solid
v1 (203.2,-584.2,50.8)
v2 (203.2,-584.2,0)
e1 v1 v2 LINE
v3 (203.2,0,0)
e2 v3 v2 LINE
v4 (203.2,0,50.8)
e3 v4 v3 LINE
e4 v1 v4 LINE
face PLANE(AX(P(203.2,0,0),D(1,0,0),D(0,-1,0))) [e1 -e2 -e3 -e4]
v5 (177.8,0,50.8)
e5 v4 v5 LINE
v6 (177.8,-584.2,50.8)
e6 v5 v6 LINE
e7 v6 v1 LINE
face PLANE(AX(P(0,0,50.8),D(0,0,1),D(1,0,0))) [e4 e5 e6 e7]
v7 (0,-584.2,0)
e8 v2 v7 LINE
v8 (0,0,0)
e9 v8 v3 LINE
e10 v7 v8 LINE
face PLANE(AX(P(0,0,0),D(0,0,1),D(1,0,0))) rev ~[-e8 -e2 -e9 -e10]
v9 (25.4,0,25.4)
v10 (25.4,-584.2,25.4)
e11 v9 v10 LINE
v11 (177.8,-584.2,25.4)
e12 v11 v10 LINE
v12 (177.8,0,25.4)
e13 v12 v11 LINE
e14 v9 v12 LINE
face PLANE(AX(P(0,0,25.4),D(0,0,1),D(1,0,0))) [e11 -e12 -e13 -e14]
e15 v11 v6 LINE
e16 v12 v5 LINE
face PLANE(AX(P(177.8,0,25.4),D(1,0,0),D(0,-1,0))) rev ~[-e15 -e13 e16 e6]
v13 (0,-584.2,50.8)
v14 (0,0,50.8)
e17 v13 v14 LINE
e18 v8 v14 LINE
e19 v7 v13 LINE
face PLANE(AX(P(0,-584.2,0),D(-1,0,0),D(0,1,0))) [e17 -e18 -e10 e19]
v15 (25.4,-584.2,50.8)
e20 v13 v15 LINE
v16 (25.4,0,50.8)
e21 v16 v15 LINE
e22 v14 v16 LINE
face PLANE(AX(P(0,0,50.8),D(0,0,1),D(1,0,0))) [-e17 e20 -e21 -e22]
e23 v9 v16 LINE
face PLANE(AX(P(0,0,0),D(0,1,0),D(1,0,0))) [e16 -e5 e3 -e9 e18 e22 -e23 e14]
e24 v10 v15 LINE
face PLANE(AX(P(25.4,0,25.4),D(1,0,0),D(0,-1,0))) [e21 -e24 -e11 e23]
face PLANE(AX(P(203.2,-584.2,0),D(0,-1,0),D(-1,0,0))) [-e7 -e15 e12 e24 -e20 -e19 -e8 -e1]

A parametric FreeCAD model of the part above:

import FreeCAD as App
import Part
import Sketcher
Q = App.Units.Quantity

doc = App.newDocument("Part")
body = doc.addObject("PartDesign::Body", "Body")

sketch1 = body.newObject("Sketcher::SketchObject", "Sketch")
sketch1.AttachmentSupport = (doc.getObject("XY_Plane"), [""])
sketch1.MapMode = "FlatFace"
sketch1.addGeometry(Part.LineSegment(App.Vector(203.2, 0, 0), App.Vector(0, 0, 0)), False)
sketch1.addGeometry(Part.LineSegment(App.Vector(0, 0, 0), App.Vector(0, -584.2, 0)), False)
sketch1.addGeometry(Part.LineSegment(App.Vector(0, -584.2, 0), App.Vector(203.2, -584.2, 0)), False)
sketch1.addGeometry(Part.LineSegment(App.Vector(203.2, -584.2, 0), App.Vector(203.2, 0, 0)), False)
sketch1.addConstraint(Sketcher.Constraint("Coincident", 0, 2, 1, 1))
sketch1.addConstraint(Sketcher.Constraint("Coincident", 1, 2, 2, 1))
sketch1.addConstraint(Sketcher.Constraint("Coincident", 2, 2, 3, 1))
sketch1.addConstraint(Sketcher.Constraint("Coincident", 3, 2, 0, 1))
sketch1.addConstraint(Sketcher.Constraint("Horizontal", 0))
sketch1.addConstraint(Sketcher.Constraint("Vertical", 1))
sketch1.addConstraint(Sketcher.Constraint("Horizontal", 2))
sketch1.addConstraint(Sketcher.Constraint("Vertical", 3))
sketch1.addConstraint(Sketcher.Constraint("Coincident", 0, 2, -1, 1))
sketch1.addConstraint(Sketcher.Constraint("DistanceX", 0, 2, 0, 1, Q("8 in")))
sketch1.addConstraint(Sketcher.Constraint("DistanceY", 1, 2, 1, 1, Q("23 in")))
pad1 = body.newObject("PartDesign::Pad", "Pad")
pad1.Profile = sketch1
pad1.Length = Q("1 in")

sketch2 = body.newObject("Sketcher::SketchObject", "Sketch001")
sketch2.AttachmentSupport = (doc.getObject("XY_Plane"), [""])
sketch2.MapMode = "FlatFace"
sketch2.AttachmentOffset = App.Placement(App.Vector(0, 0, 1 * 25.4), App.Rotation())
sketch2.addGeometry(Part.LineSegment(App.Vector(0, 0, 0), App.Vector(0, -584.2, 0)), False)
sketch2.addGeometry(Part.LineSegment(App.Vector(0, -584.2, 0), App.Vector(25.4, -584.2, 0)), False)
sketch2.addGeometry(Part.LineSegment(App.Vector(25.4, -584.2, 0), App.Vector(25.4, 0, 0)), False)
sketch2.addGeometry(Part.LineSegment(App.Vector(25.4, 0, 0), App.Vector(0, 0, 0)), False)
sketch2.addGeometry(Part.LineSegment(App.Vector(177.8, 0, 0), App.Vector(177.8, -584.2, 0)), False)
sketch2.addGeometry(Part.LineSegment(App.Vector(177.8, -584.2, 0), App.Vector(203.2, -584.2, 0)), False)
sketch2.addGeometry(Part.LineSegment(App.Vector(203.2, -584.2, 0), App.Vector(203.2, 0, 0)), False)
sketch2.addGeometry(Part.LineSegment(App.Vector(203.2, 0, 0), App.Vector(177.8, 0, 0)), False)
sketch2.addConstraint(Sketcher.Constraint("Coincident", 0, 2, 1, 1))
sketch2.addConstraint(Sketcher.Constraint("Coincident", 1, 2, 2, 1))
sketch2.addConstraint(Sketcher.Constraint("Coincident", 2, 2, 3, 1))
sketch2.addConstraint(Sketcher.Constraint("Coincident", 3, 2, 0, 1))
sketch2.addConstraint(Sketcher.Constraint("Coincident", 4, 2, 5, 1))
sketch2.addConstraint(Sketcher.Constraint("Coincident", 5, 2, 6, 1))
sketch2.addConstraint(Sketcher.Constraint("Coincident", 6, 2, 7, 1))
sketch2.addConstraint(Sketcher.Constraint("Coincident", 7, 2, 4, 1))
sketch2.addConstraint(Sketcher.Constraint("Vertical", 0))
sketch2.addConstraint(Sketcher.Constraint("Horizontal", 1))
sketch2.addConstraint(Sketcher.Constraint("Vertical", 2))
sketch2.addConstraint(Sketcher.Constraint("Horizontal", 3))
sketch2.addConstraint(Sketcher.Constraint("Vertical", 4))
sketch2.addConstraint(Sketcher.Constraint("Horizontal", 5))
sketch2.addConstraint(Sketcher.Constraint("Vertical", 6))
sketch2.addConstraint(Sketcher.Constraint("Horizontal", 7))
sketch2.addConstraint(Sketcher.Constraint("Coincident", 3, 2, -1, 1))
sketch2.addConstraint(Sketcher.Constraint("PointOnObject", 6, 2, -1))
sketch2.addConstraint(Sketcher.Constraint("Horizontal", 1, 2, 4, 2))
sketch2.addConstraint(Sketcher.Constraint("Equal", 3, 5))
sketch2.addConstraint(Sketcher.Constraint("DistanceX", 1, 1, 1, 2, Q("1 in")))
sketch2.addConstraint(Sketcher.Constraint("DistanceY", 0, 2, 0, 1, Q("23 in")))
sketch2.addConstraint(Sketcher.Constraint("DistanceX", -1, 1, 4, 2, Q("7 in")))
pad2 = body.newObject("PartDesign::Pad", "Pad001")
pad2.Profile = sketch2
pad2.Length = Q("1 in")

doc.recompute()
